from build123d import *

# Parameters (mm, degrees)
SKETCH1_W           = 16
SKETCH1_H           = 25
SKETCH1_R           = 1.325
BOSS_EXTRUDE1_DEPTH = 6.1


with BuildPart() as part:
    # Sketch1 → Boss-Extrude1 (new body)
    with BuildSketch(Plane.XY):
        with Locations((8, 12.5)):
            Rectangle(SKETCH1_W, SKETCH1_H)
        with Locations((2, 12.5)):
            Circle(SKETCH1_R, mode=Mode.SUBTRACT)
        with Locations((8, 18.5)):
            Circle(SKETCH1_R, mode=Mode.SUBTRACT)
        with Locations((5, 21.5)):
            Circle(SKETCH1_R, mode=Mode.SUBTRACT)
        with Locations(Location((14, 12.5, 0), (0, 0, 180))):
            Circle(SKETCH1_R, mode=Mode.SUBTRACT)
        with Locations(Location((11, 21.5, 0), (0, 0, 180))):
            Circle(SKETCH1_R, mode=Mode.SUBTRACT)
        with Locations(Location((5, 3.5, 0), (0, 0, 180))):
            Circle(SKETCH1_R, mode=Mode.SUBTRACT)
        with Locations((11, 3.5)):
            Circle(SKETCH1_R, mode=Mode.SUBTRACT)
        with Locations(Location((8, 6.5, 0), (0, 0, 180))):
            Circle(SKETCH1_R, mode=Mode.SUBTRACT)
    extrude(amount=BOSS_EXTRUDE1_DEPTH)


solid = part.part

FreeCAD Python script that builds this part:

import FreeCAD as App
import Part
import Sketcher

V = App.Vector
Q = App.Units.Quantity


def add_polygon(sketch, points):
    """Adds a closed chain of lines whose ends are joined by coincident constraints."""
    first, n = sketch.GeometryCount, len(points)
    for a, b in zip(points, points[1:] + points[:1]):
        sketch.addGeometry(Part.LineSegment(App.Vector(*a, 0), App.Vector(*b, 0)), False)
    for i in range(n):
        sketch.addConstraint(Sketcher.Constraint("Coincident", first + i, 2, first + (i + 1) % n, 1))

doc = App.newDocument("Part")
body = doc.addObject("PartDesign::Body", "Body")

# Sketch on XY plane
sketch1 = body.newObject("Sketcher::SketchObject", "Sketch")
sketch1.AttachmentSupport = (doc.getObject("XY_Plane"), [""])
sketch1.MapMode = "FlatFace"
add_polygon(sketch1, [(0, 25), (0, 0), (16, 0), (16, 25)])  # lines 0-3
sketch1.addGeometry(Part.Circle(V(5, 3.5, 0), V(0, 0, 1), 1.325), False)  # 4
sketch1.addGeometry(Part.Circle(V(11, 3.5, 0), V(0, 0, 1), 1.325), False)  # 5
sketch1.addGeometry(Part.Circle(V(8, 6.5, 0), V(0, 0, 1), 1.325), False)  # 6
sketch1.addGeometry(Part.Circle(V(2, 12.5, 0), V(0, 0, 1), 1.325), False)  # 7
sketch1.addGeometry(Part.Circle(V(5, 21.5, 0), V(0, 0, 1), 1.325), False)  # 8
sketch1.addGeometry(Part.Circle(V(14, 12.5, 0), V(0, 0, 1), 1.325), False)  # 9
sketch1.addGeometry(Part.Circle(V(8, 18.5, 0), V(0, 0, 1), 1.325), False)  # 10
sketch1.addGeometry(Part.Circle(V(11, 21.5, 0), V(0, 0, 1), 1.325), False)  # 11
sketch1.addConstraint([
    Sketcher.Constraint("Vertical", 0),
    Sketcher.Constraint("Horizontal", 1),
    Sketcher.Constraint("Vertical", 2),
    Sketcher.Constraint("Horizontal", 3),
    Sketcher.Constraint("Coincident", 0, 2, -1, 1),
    Sketcher.Constraint("Equal", 4, 5),
    Sketcher.Constraint("Equal", 5, 6),
    Sketcher.Constraint("Equal", 6, 7),
    Sketcher.Constraint("Equal", 7, 8),
    Sketcher.Constraint("Equal", 8, 9),
    Sketcher.Constraint("Equal", 9, 10),
    Sketcher.Constraint("Equal", 10, 11),
    Sketcher.Constraint("Horizontal", 4, 3, 5, 3),
    Sketcher.Constraint("Horizontal", 7, 3, 9, 3),
    Sketcher.Constraint("Horizontal", 8, 3, 11, 3),
    Sketcher.Constraint("Vertical", 4, 3, 8, 3),
    Sketcher.Constraint("Vertical", 6, 3, 10, 3),
    Sketcher.Constraint("Vertical", 5, 3, 11, 3),
    Sketcher.Constraint("Diameter", 4, Q("2.65 mm")),
    Sketcher.Constraint("DistanceX", 1, 1, 1, 2, Q("16 mm")),
    Sketcher.Constraint("DistanceY", 0, 2, 0, 1, Q("25 mm")),
    Sketcher.Constraint("DistanceX", -1, 1, 4, 3, Q("5 mm")),
    Sketcher.Constraint("DistanceX", -1, 1, 5, 3, Q("11 mm")),
    Sketcher.Constraint("DistanceX", -1, 1, 6, 3, Q("8 mm")),
    Sketcher.Constraint("DistanceX", -1, 1, 7, 3, Q("2 mm")),
    Sketcher.Constraint("DistanceX", -1, 1, 9, 3, Q("14 mm")),
    Sketcher.Constraint("DistanceY", 4, 3, 6, 3, Q("3 mm")),
    Sketcher.Constraint("DistanceY", 6, 3, 7, 3, Q("6 mm")),
    Sketcher.Constraint("DistanceY", 7, 3, 8, 3, Q("9 mm")),
    Sketcher.Constraint("DistanceY", 10, 3, 8, 3, Q("3 mm")),
    Sketcher.Constraint("DistanceY", -1, 1, 4, 3, Q("3.5 mm")),
])
pad1 = body.newObject("PartDesign::Pad", "Pad")
pad1.Profile = sketch1
pad1.Length = 6.1

doc.recompute()
